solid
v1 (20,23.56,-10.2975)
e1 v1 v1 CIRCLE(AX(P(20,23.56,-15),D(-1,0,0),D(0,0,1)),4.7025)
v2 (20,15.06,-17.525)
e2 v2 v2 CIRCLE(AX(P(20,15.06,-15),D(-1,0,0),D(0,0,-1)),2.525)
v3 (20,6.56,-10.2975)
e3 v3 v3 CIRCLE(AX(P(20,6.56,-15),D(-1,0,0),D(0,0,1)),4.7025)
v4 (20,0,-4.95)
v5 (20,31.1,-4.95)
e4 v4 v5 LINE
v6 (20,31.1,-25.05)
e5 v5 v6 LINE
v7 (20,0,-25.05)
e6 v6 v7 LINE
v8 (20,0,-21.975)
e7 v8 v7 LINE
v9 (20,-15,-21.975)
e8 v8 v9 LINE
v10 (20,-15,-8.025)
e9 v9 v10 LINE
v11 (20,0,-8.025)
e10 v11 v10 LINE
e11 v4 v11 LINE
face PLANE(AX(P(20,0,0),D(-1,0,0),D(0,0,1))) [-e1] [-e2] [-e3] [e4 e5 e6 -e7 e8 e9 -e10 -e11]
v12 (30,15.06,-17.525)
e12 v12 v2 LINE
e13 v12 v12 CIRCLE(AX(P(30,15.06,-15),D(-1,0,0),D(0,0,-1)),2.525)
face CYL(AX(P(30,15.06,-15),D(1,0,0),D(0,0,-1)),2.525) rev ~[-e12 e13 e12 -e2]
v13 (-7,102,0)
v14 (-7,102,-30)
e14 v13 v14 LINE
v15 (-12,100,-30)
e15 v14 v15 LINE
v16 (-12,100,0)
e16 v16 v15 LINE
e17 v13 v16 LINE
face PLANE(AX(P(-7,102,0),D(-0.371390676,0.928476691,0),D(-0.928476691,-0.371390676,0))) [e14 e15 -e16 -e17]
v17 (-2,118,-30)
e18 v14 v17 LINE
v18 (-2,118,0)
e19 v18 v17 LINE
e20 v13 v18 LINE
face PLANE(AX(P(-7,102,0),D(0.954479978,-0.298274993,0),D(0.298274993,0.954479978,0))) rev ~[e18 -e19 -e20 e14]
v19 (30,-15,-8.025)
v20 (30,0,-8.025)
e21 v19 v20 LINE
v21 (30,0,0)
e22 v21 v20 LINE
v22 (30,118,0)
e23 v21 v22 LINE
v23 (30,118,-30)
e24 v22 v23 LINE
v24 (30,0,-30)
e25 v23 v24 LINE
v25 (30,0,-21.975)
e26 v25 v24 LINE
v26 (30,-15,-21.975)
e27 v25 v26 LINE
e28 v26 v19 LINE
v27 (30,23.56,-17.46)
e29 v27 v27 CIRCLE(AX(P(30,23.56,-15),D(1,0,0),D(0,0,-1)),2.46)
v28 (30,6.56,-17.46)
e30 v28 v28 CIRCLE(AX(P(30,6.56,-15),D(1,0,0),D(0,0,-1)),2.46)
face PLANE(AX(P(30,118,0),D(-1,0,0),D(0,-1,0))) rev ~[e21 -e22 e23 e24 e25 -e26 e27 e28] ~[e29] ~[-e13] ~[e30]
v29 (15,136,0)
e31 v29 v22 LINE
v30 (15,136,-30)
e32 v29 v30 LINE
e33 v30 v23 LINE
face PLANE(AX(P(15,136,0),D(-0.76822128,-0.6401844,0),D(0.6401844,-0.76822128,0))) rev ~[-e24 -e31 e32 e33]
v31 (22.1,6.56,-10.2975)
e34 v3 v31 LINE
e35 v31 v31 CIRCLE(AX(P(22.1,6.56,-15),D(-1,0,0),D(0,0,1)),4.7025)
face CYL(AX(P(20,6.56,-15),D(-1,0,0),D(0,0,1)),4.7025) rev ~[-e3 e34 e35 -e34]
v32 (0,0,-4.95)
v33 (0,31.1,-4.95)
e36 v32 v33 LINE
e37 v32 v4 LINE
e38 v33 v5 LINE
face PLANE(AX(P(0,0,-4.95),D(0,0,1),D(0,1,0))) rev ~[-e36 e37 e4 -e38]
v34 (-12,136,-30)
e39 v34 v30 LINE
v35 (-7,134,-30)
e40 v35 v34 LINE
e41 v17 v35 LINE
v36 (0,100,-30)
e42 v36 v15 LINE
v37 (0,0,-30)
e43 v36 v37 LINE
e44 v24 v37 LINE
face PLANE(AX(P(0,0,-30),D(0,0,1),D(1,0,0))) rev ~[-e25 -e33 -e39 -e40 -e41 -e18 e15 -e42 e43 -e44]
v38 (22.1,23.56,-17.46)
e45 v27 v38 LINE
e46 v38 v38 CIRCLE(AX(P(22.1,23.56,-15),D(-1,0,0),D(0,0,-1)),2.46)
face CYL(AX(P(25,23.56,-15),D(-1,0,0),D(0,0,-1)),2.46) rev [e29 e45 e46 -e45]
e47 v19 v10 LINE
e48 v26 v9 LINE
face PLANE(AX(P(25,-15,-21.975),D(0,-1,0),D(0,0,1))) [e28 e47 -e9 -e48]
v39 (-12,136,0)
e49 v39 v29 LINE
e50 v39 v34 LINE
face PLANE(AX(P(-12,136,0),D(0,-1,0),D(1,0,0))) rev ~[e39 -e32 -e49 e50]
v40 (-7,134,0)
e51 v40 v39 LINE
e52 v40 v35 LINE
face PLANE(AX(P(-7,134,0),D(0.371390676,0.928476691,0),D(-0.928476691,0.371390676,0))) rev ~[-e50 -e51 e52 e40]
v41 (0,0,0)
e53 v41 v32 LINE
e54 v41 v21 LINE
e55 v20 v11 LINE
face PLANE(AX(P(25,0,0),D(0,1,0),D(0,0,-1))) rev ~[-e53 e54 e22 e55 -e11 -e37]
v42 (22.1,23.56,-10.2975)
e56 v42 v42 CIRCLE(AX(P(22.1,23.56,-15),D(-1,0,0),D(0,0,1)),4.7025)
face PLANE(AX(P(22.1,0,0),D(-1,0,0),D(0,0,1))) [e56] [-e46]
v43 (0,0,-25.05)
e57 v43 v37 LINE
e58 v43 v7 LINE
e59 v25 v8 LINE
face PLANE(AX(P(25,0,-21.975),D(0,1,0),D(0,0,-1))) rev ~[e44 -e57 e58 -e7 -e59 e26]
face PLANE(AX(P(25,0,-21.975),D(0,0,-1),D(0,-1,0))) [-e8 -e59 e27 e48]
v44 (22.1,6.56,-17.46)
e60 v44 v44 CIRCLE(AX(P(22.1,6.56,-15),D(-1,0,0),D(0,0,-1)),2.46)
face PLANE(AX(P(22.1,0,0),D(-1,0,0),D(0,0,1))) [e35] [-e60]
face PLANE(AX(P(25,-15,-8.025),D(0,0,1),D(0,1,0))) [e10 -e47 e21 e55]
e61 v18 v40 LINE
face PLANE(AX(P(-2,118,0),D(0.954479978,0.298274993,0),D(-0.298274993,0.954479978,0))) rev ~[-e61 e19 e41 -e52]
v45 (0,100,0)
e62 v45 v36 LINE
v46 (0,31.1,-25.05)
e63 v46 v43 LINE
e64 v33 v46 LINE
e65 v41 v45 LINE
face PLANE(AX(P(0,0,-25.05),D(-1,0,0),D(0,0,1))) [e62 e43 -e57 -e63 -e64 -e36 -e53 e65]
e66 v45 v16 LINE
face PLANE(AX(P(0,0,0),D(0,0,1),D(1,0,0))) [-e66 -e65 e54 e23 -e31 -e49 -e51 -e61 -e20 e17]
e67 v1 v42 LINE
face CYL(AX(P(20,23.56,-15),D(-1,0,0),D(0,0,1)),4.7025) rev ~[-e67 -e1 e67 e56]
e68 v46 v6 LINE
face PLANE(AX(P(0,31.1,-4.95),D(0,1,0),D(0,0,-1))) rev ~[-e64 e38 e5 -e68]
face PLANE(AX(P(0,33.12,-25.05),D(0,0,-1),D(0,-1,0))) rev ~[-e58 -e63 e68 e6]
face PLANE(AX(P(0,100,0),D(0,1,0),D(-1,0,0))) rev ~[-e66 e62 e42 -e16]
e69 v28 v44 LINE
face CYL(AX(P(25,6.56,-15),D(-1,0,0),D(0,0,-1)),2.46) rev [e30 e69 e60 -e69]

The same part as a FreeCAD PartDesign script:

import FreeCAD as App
import Part
import Sketcher
from FreeCAD import Vector


def add_polygon(sketch, points):
    """Adds a closed chain of lines whose ends are joined by coincident constraints."""
    first, n = sketch.GeometryCount, len(points)
    for a, b in zip(points, points[1:] + points[:1]):
        sketch.addGeometry(Part.LineSegment(App.Vector(*a, 0), App.Vector(*b, 0)), False)
    for i in range(n):
        sketch.addConstraint(Sketcher.Constraint("Coincident", first + i, 2, first + (i + 1) % n, 1))

doc = App.newDocument("Part")
params = doc.addObject("Spreadsheet::Sheet", "Params")
for row, (alias, value) in enumerate([
    ("sketch1_width", "25 mm"),
    ("sketch1_height", "40 mm"),
    ("pad1_length", "30 mm"),
    ("sketch2_diameter", "4.92 mm"),
    ("pocket1_length", "30 mm"),
    ("sketch3_height", "20.1 mm"),
    ("sketch3_width", "33.12 mm"),
    ("pocket2_length", "20 mm"),
    ("sketch4_height", "13.95 mm"),
    ("sketch4_width", "5 mm"),
    ("pad2_length", "15 mm"),
    ("sketch5_diameter", "4.92 mm"),
    ("pocket3_length", "2.1 mm"),
    ("sketch6_diameter", "4.92 mm"),
    ("pocket4_length", "10 mm"),
    ("sketch7_diameter", "4.92 mm"),
    ("pocket5_length", "2.1 mm"),
    ("sketch8_diameter", "4.92 mm"),
    ("sketch8_width", "40 mm"),
    ("sketch8_width2", "15 mm"),
    ("sketch8_height", "30 mm"),
    ("sketch8_height2", "13.95 mm"),
    ("pad3_length", "5 mm"),
    ("sketch9_width", "30 mm"),
    ("pad4_length", "30 mm"),
    ("sketch10_diameter", "5.05 mm"),
    ("pocket6_length", "30 mm"),
    ("sketch11_width", "12 mm"),
    ("sketch11_width2", "30 mm"),
    ("sketch11_width3", "27 mm"),
    ("sketch11_height", "48 mm"),
    ("pad5_length", "30 mm"),
    ("sketch12_width", "2.02 mm"),
    ("sketch12_height", "20.1 mm"),
    ("pad6_length", "20 mm"),
], start=1):
    params.set(f"A{row}", alias)
    params.set(f"B{row}", "=" + value)
    params.setAlias(f"B{row}", alias)

body = doc.addObject("PartDesign::Body", "Body")

# Sketch on XY plane
sketch1 = body.newObject("Sketcher::SketchObject", "Sketch")
sketch1.AttachmentSupport = (doc.getObject("XY_Plane"), [""])
sketch1.MapMode = "FlatFace"
add_polygon(sketch1, [(0, 40), (0, 0), (25, 0), (25, 40)])  # lines 0-3
sketch1.addConstraint([
    Sketcher.Constraint("Vertical", 0),
    Sketcher.Constraint("Horizontal", 1),
    Sketcher.Constraint("Vertical", 2),
    Sketcher.Constraint("Horizontal", 3),
    Sketcher.Constraint("Coincident", 0, 2, -1, 1),
    Sketcher.Constraint("DistanceX", 1, 1, 1, 2, 25.0),
    Sketcher.Constraint("DistanceY", 0, 2, 0, 1, 40.0),
])
sketch1.setExpression("Constraints[9]", "Params.sketch1_width")
sketch1.setExpression("Constraints[10]", "Params.sketch1_height")
pad1 = body.newObject("PartDesign::Pad", "Pad")
pad1.Profile = sketch1
pad1.setExpression("Length", "Params.pad1_length")
pad1.Reversed = True

# Sketch on YZ plane
sketch2 = body.newObject("Sketcher::SketchObject", "Sketch001")
sketch2.AttachmentSupport = (doc.getObject("YZ_Plane"), [""])
sketch2.MapMode = "FlatFace"
sketch2.AttachmentOffset = App.Placement(Vector(0, 0, 25), App.Rotation())
sketch2.addGeometry(Part.Circle(Vector(6.56, -15, 0), Vector(0, 0, 1), 2.46), False)
sketch2.addConstraint([
    Sketcher.Constraint("Diameter", 0, 4.92),
    Sketcher.Constraint("DistanceY", 0, 3, -1, 1, 15.0),
    Sketcher.Constraint("DistanceX", -1, 1, 0, 3, 6.56),
])
sketch2.setExpression("Constraints[0]", "Params.sketch2_diameter")
pocket1 = body.newObject("PartDesign::Pocket", "Pocket")
pocket1.Profile = sketch2
pocket1.setExpression("Length", "Params.pocket1_length")

# Sketch on YZ plane
sketch3 = body.newObject("Sketcher::SketchObject", "Sketch002")
sketch3.AttachmentSupport = (doc.getObject("YZ_Plane"), [""])
sketch3.MapMode = "FlatFace"
add_polygon(sketch3, [(0, -25.05), (0, -4.95), (33.12, -4.95), (33.12, -25.05)])  # lines 0-3
sketch3.addConstraint([
    Sketcher.Constraint("Vertical", 0),
    Sketcher.Constraint("Horizontal", 1),
    Sketcher.Constraint("Vertical", 2),
    Sketcher.Constraint("Horizontal", 3),
    Sketcher.Constraint("PointOnObject", 0, 2, -2),
    Sketcher.Constraint("DistanceY", 0, 1, 0, 2, 20.1),
    Sketcher.Constraint("DistanceX", 1, 1, 1, 2, 33.12),
    Sketcher.Constraint("DistanceY", 0, 2, -1, 1, 4.95),
])
sketch3.setExpression("Constraints[9]", "Params.sketch3_height")
sketch3.setExpression("Constraints[10]", "Params.sketch3_width")
pocket2 = body.newObject("PartDesign::Pocket", "Pocket001")
pocket2.Profile = sketch3
pocket2.setExpression("Length", "Params.pocket2_length")
pocket2.Reversed = True

# Sketch on XZ plane
sketch4 = body.newObject("Sketcher::SketchObject", "Sketch003")
sketch4.AttachmentSupport = (doc.getObject("XZ_Plane"), [""])
sketch4.MapMode = "FlatFace"
add_polygon(sketch4, [(25, -8.025), (20, -8.025), (20, -21.975), (25, -21.975)])  # lines 0-3
sketch4.addConstraint([
    Sketcher.Constraint("Horizontal", 0),
    Sketcher.Constraint("Vertical", 1),
    Sketcher.Constraint("Horizontal", 2),
    Sketcher.Constraint("Vertical", 3),
    Sketcher.Constraint("DistanceY", 1, 2, 1, 1, 13.95),
    Sketcher.Constraint("DistanceX", 0, 2, 0, 1, 5.0),
    Sketcher.Constraint("DistanceX", -1, 1, 0, 2, 20.0),
    Sketcher.Constraint("DistanceY", 0, 2, -1, 1, 8.025),
])
sketch4.setExpression("Constraints[8]", "Params.sketch4_height")
sketch4.setExpression("Constraints[9]", "Params.sketch4_width")
pad2 = body.newObject("PartDesign::Pad", "Pad001")
pad2.Profile = sketch4
pad2.setExpression("Length", "Params.pad2_length")

# Sketch on YZ plane
sketch5 = body.newObject("Sketcher::SketchObject", "Sketch004")
sketch5.AttachmentSupport = (doc.getObject("YZ_Plane"), [""])
sketch5.MapMode = "FlatFace"
sketch5.AttachmentOffset = App.Placement(Vector(0, 0, 20), App.Rotation())
sketch5.addGeometry([
    Part.Circle(Vector(6.56, -15, 0), Vector(0, 0, 1), 4.7025),
    Part.Circle(Vector(6.56, -15, 0), Vector(0, 0, 1), 2.46),
], False)
sketch5.addConstraint([
    Sketcher.Constraint("Coincident", 1, 3, 0, 3),
    Sketcher.Constraint("Diameter", 0, 9.405),
    Sketcher.Constraint("Diameter", 1, 4.92),
    Sketcher.Constraint("DistanceY", 0, 3, -1, 1, 15.0),
    Sketcher.Constraint("DistanceX", -1, 1, 0, 3, 6.56),
])
sketch5.setExpression("Constraints[2]", "Params.sketch5_diameter")
pocket3 = body.newObject("PartDesign::Pocket", "Pocket002")
pocket3.Profile = sketch5
pocket3.setExpression("Length", "Params.pocket3_length")
pocket3.Reversed = True

# Sketch on YZ plane
sketch6 = body.newObject("Sketcher::SketchObject", "Sketch005")
sketch6.AttachmentSupport = (doc.getObject("YZ_Plane"), [""])
sketch6.MapMode = "FlatFace"
sketch6.AttachmentOffset = App.Placement(Vector(0, 0, 25), App.Rotation())
sketch6.addGeometry(Part.Circle(Vector(23.56, -15, 0), Vector(0, 0, 1), 2.46), False)
sketch6.addConstraint([
    Sketcher.Constraint("Diameter", 0, 4.92),
    Sketcher.Constraint("DistanceY", 0, 3, -1, 1, 15.0),
    Sketcher.Constraint("DistanceX", -1, 1, 0, 3, 23.56),
])
sketch6.setExpression("Constraints[0]", "Params.sketch6_diameter")
pocket4 = body.newObject("PartDesign::Pocket", "Pocket003")
pocket4.Profile = sketch6
pocket4.setExpression("Length", "Params.pocket4_length")

# Sketch on YZ plane
sketch7 = body.newObject("Sketcher::SketchObject", "Sketch006")
sketch7.AttachmentSupport = (doc.getObject("YZ_Plane"), [""])
sketch7.MapMode = "FlatFace"
sketch7.AttachmentOffset = App.Placement(Vector(0, 0, 20), App.Rotation())
sketch7.addGeometry([
    Part.Circle(Vector(23.56, -15, 0), Vector(0, 0, 1), 4.7025),
    Part.Circle(Vector(23.56, -15, 0), Vector(0, 0, 1), 2.46),
], False)
sketch7.addConstraint([
    Sketcher.Constraint("Coincident", 1, 3, 0, 3),
    Sketcher.Constraint("Diameter", 0, 9.405),
    Sketcher.Constraint("Diameter", 1, 4.92),
    Sketcher.Constraint("DistanceY", 0, 3, -1, 1, 15.0),
    Sketcher.Constraint("DistanceX", -1, 1, 0, 3, 23.56),
])
sketch7.setExpression("Constraints[2]", "Params.sketch7_diameter")
pocket5 = body.newObject("PartDesign::Pocket", "Pocket004")
pocket5.Profile = sketch7
pocket5.setExpression("Length", "Params.pocket5_length")
pocket5.Reversed = True

# Sketch on YZ plane
sketch8 = body.newObject("Sketcher::SketchObject", "Sketch007")
sketch8.AttachmentSupport = (doc.getObject("YZ_Plane"), [""])
sketch8.MapMode = "FlatFace"
sketch8.AttachmentOffset = App.Placement(Vector(0, 0, 25), App.Rotation())
add_polygon(sketch8, [(0, -30), (40, -30), (40, 0), (0, 0), (0, -8.025), (-15, -8.025), (-15, -21.975), (0, -21.975)])  # lines 0-7
sketch8.addGeometry(Part.Circle(Vector(6.56, -15, 0), Vector(0, 0, 1), 2.46), False)  # 8
sketch8.addGeometry(Part.Circle(Vector(23.56, -15, 0), Vector(0, 0, 1), 2.46), False)  # 9
sketch8.addConstraint([
    Sketcher.Constraint("Horizontal", 0),
    Sketcher.Constraint("Vertical", 1),
    Sketcher.Constraint("Horizontal", 2),
    Sketcher.Constraint("Vertical", 3),
    Sketcher.Constraint("Horizontal", 4),
    Sketcher.Constraint("Vertical", 5),
    Sketcher.Constraint("Horizontal", 6),
    Sketcher.Constraint("Vertical", 7),
    Sketcher.Constraint("Coincident", 2, 2, -1, 1),
    Sketcher.Constraint("Equal", 8, 9),
    Sketcher.Constraint("PointOnObject", 6, 2, -2),
    Sketcher.Constraint("Horizontal", 8, 3, 9, 3),
    Sketcher.Constraint("Equal", 3, 7),
    Sketcher.Constraint("Diameter", 8, 4.92),
    Sketcher.Constraint("DistanceX", 0, 1, 0, 2, 40.0),
    Sketcher.Constraint("DistanceX", 4, 2, 4, 1, 15.0),
    Sketcher.Constraint("DistanceY", 1, 1, 1, 2, 30.0),
    Sketcher.Constraint("DistanceY", 8, 3, -1, 1, 15.0),
    Sketcher.Constraint("DistanceX", 8, 3, 9, 3, 17.0),
    Sketcher.Constraint("DistanceY", 5, 2, 5, 1, 13.95),
    Sketcher.Constraint("DistanceX", -1, 1, 8, 3, 6.56),
])
sketch8.setExpression("Constraints[21]", "Params.sketch8_diameter")
sketch8.setExpression("Constraints[22]", "Params.sketch8_width")
sketch8.setExpression("Constraints[23]", "Params.sketch8_width2")
sketch8.setExpression("Constraints[24]", "Params.sketch8_height")
sketch8.setExpression("Constraints[27]", "Params.sketch8_height2")
pad3 = body.newObject("PartDesign::Pad", "Pad002")
pad3.Profile = sketch8
pad3.setExpression("Length", "Params.pad3_length")

# Sketch on XZ plane
sketch9 = body.newObject("Sketcher::SketchObject", "Sketch008")
sketch9.AttachmentSupport = (doc.getObject("XZ_Plane"), [""])
sketch9.MapMode = "FlatFace"
sketch9.AttachmentOffset = App.Placement(Vector(0, 0, -40), App.Rotation())
add_polygon(sketch9, [(30, -30), (0, -30), (0, 0), (30, 0)])  # lines 0-3
sketch9.addConstraint([
    Sketcher.Constraint("Horizontal", 0),
    Sketcher.Constraint("Vertical", 1),
    Sketcher.Constraint("Horizontal", 2),
    Sketcher.Constraint("Vertical", 3),
    Sketcher.Constraint("Coincident", 1, 2, -1, 1),
    Sketcher.Constraint("Equal", 2, 1),
    Sketcher.Constraint("DistanceX", 0, 2, 0, 1, 30.0),
])
sketch9.setExpression("Constraints[10]", "Params.sketch9_width")
pad4 = body.newObject("PartDesign::Pad", "Pad003")
pad4.Profile = sketch9
pad4.setExpression("Length", "Params.pad4_length")
pad4.Reversed = True

# Sketch on YZ plane
sketch10 = body.newObject("Sketcher::SketchObject", "Sketch009")
sketch10.AttachmentSupport = (doc.getObject("YZ_Plane"), [""])
sketch10.MapMode = "FlatFace"
sketch10.AttachmentOffset = App.Placement(Vector(0, 0, 30), App.Rotation())
sketch10.addGeometry(Part.Circle(Vector(15.06, -15, 0), Vector(0, 0, 1), 2.525), False)
sketch10.addConstraint([
    Sketcher.Constraint("Diameter", 0, 5.05),
    Sketcher.Constraint("DistanceY", 0, 3, -1, 1, 15.0),
    Sketcher.Constraint("DistanceX", -1, 1, 0, 3, 15.06),
])
sketch10.setExpression("Constraints[0]", "Params.sketch10_diameter")
pocket6 = body.newObject("PartDesign::Pocket", "Pocket005")
pocket6.Profile = sketch10
pocket6.setExpression("Length", "Params.pocket6_length")

# Sketch on XY plane
sketch11 = body.newObject("Sketcher::SketchObject", "Sketch010")
sketch11.AttachmentSupport = (doc.getObject("XY_Plane"), [""])
sketch11.MapMode = "FlatFace"
add_polygon(sketch11, [(0, 70), (30, 70), (30, 118), (15, 136), (-12, 136), (-7, 134), (-2, 118), (-7, 102), (-12, 100), (0, 100)])  # lines 0-9
sketch11.addConstraint([
    Sketcher.Constraint("Horizontal", 0),
    Sketcher.Constraint("Vertical", 1),
    Sketcher.Constraint("Horizontal", 3),
    Sketcher.Constraint("Horizontal", 8),
    Sketcher.Constraint("Vertical", 9),
    Sketcher.Constraint("PointOnObject", 8, 2, -2),
    Sketcher.Constraint("Horizontal", 1, 2, 5, 2),
    Sketcher.Constraint("Vertical", 4, 2, 6, 2),
    Sketcher.Constraint("Vertical", 3, 2, 7, 2),
    Sketcher.Constraint("Equal", 0, 9),
    Sketcher.Constraint("Equal", 5, 6),
    Sketcher.Constraint("Equal", 4, 7),
    Sketcher.Constraint("DistanceX", 8, 1, 8, 2, 12.0),
    Sketcher.Constraint("DistanceX", 0, 1, 0, 2, 30.0),
    Sketcher.Constraint("DistanceX", 3, 2, 3, 1, 27.0),
    Sketcher.Constraint("DistanceY", 1, 1, 1, 2, 48.0),
    Sketcher.Constraint("DistanceY", -1, 1, 0, 2, 70.0),
    Sketcher.Constraint("DistanceX", 4, 2, -1, 1, 7.0),
    Sketcher.Constraint("DistanceY", -1, 1, 4, 2, 134.0),
    Sketcher.Constraint("DistanceX", 5, 2, -1, 1, 2.0),
])
sketch11.setExpression("Constraints[22]", "Params.sketch11_width")
sketch11.setExpression("Constraints[23]", "Params.sketch11_width2")
sketch11.setExpression("Constraints[24]", "Params.sketch11_width3")
sketch11.setExpression("Constraints[25]", "Params.sketch11_height")
pad5 = body.newObject("PartDesign::Pad", "Pad004")
pad5.Profile = sketch11
pad5.setExpression("Length", "Params.pad5_length")
pad5.Reversed = True

# Sketch on YZ plane
sketch12 = body.newObject("Sketcher::SketchObject", "Sketch011")
sketch12.AttachmentSupport = (doc.getObject("YZ_Plane"), [""])
sketch12.MapMode = "FlatFace"
add_polygon(sketch12, [(33.12, -4.95), (33.12, -25.05), (31.1, -25.05), (31.1, -4.95)])  # lines 0-3
sketch12.addConstraint([
    Sketcher.Constraint("Vertical", 0),
    Sketcher.Constraint("Horizontal", 1),
    Sketcher.Constraint("Vertical", 2),
    Sketcher.Constraint("Horizontal", 3),
    Sketcher.Constraint("DistanceX", 1, 2, 1, 1, 2.02),
    Sketcher.Constraint("DistanceY", 0, 2, 0, 1, 20.1),
    Sketcher.Constraint("DistanceX", -1, 1, 1, 2, 31.1),
    Sketcher.Constraint("DistanceY", 0, 2, -1, 1, 25.05),
])
sketch12.setExpression("Constraints[8]", "Params.sketch12_width")
sketch12.setExpression("Constraints[9]", "Params.sketch12_height")
pad6 = body.newObject("PartDesign::Pad", "Pad005")
pad6.Profile = sketch12
pad6.setExpression("Length", "Params.pad6_length")

doc.recompute()
